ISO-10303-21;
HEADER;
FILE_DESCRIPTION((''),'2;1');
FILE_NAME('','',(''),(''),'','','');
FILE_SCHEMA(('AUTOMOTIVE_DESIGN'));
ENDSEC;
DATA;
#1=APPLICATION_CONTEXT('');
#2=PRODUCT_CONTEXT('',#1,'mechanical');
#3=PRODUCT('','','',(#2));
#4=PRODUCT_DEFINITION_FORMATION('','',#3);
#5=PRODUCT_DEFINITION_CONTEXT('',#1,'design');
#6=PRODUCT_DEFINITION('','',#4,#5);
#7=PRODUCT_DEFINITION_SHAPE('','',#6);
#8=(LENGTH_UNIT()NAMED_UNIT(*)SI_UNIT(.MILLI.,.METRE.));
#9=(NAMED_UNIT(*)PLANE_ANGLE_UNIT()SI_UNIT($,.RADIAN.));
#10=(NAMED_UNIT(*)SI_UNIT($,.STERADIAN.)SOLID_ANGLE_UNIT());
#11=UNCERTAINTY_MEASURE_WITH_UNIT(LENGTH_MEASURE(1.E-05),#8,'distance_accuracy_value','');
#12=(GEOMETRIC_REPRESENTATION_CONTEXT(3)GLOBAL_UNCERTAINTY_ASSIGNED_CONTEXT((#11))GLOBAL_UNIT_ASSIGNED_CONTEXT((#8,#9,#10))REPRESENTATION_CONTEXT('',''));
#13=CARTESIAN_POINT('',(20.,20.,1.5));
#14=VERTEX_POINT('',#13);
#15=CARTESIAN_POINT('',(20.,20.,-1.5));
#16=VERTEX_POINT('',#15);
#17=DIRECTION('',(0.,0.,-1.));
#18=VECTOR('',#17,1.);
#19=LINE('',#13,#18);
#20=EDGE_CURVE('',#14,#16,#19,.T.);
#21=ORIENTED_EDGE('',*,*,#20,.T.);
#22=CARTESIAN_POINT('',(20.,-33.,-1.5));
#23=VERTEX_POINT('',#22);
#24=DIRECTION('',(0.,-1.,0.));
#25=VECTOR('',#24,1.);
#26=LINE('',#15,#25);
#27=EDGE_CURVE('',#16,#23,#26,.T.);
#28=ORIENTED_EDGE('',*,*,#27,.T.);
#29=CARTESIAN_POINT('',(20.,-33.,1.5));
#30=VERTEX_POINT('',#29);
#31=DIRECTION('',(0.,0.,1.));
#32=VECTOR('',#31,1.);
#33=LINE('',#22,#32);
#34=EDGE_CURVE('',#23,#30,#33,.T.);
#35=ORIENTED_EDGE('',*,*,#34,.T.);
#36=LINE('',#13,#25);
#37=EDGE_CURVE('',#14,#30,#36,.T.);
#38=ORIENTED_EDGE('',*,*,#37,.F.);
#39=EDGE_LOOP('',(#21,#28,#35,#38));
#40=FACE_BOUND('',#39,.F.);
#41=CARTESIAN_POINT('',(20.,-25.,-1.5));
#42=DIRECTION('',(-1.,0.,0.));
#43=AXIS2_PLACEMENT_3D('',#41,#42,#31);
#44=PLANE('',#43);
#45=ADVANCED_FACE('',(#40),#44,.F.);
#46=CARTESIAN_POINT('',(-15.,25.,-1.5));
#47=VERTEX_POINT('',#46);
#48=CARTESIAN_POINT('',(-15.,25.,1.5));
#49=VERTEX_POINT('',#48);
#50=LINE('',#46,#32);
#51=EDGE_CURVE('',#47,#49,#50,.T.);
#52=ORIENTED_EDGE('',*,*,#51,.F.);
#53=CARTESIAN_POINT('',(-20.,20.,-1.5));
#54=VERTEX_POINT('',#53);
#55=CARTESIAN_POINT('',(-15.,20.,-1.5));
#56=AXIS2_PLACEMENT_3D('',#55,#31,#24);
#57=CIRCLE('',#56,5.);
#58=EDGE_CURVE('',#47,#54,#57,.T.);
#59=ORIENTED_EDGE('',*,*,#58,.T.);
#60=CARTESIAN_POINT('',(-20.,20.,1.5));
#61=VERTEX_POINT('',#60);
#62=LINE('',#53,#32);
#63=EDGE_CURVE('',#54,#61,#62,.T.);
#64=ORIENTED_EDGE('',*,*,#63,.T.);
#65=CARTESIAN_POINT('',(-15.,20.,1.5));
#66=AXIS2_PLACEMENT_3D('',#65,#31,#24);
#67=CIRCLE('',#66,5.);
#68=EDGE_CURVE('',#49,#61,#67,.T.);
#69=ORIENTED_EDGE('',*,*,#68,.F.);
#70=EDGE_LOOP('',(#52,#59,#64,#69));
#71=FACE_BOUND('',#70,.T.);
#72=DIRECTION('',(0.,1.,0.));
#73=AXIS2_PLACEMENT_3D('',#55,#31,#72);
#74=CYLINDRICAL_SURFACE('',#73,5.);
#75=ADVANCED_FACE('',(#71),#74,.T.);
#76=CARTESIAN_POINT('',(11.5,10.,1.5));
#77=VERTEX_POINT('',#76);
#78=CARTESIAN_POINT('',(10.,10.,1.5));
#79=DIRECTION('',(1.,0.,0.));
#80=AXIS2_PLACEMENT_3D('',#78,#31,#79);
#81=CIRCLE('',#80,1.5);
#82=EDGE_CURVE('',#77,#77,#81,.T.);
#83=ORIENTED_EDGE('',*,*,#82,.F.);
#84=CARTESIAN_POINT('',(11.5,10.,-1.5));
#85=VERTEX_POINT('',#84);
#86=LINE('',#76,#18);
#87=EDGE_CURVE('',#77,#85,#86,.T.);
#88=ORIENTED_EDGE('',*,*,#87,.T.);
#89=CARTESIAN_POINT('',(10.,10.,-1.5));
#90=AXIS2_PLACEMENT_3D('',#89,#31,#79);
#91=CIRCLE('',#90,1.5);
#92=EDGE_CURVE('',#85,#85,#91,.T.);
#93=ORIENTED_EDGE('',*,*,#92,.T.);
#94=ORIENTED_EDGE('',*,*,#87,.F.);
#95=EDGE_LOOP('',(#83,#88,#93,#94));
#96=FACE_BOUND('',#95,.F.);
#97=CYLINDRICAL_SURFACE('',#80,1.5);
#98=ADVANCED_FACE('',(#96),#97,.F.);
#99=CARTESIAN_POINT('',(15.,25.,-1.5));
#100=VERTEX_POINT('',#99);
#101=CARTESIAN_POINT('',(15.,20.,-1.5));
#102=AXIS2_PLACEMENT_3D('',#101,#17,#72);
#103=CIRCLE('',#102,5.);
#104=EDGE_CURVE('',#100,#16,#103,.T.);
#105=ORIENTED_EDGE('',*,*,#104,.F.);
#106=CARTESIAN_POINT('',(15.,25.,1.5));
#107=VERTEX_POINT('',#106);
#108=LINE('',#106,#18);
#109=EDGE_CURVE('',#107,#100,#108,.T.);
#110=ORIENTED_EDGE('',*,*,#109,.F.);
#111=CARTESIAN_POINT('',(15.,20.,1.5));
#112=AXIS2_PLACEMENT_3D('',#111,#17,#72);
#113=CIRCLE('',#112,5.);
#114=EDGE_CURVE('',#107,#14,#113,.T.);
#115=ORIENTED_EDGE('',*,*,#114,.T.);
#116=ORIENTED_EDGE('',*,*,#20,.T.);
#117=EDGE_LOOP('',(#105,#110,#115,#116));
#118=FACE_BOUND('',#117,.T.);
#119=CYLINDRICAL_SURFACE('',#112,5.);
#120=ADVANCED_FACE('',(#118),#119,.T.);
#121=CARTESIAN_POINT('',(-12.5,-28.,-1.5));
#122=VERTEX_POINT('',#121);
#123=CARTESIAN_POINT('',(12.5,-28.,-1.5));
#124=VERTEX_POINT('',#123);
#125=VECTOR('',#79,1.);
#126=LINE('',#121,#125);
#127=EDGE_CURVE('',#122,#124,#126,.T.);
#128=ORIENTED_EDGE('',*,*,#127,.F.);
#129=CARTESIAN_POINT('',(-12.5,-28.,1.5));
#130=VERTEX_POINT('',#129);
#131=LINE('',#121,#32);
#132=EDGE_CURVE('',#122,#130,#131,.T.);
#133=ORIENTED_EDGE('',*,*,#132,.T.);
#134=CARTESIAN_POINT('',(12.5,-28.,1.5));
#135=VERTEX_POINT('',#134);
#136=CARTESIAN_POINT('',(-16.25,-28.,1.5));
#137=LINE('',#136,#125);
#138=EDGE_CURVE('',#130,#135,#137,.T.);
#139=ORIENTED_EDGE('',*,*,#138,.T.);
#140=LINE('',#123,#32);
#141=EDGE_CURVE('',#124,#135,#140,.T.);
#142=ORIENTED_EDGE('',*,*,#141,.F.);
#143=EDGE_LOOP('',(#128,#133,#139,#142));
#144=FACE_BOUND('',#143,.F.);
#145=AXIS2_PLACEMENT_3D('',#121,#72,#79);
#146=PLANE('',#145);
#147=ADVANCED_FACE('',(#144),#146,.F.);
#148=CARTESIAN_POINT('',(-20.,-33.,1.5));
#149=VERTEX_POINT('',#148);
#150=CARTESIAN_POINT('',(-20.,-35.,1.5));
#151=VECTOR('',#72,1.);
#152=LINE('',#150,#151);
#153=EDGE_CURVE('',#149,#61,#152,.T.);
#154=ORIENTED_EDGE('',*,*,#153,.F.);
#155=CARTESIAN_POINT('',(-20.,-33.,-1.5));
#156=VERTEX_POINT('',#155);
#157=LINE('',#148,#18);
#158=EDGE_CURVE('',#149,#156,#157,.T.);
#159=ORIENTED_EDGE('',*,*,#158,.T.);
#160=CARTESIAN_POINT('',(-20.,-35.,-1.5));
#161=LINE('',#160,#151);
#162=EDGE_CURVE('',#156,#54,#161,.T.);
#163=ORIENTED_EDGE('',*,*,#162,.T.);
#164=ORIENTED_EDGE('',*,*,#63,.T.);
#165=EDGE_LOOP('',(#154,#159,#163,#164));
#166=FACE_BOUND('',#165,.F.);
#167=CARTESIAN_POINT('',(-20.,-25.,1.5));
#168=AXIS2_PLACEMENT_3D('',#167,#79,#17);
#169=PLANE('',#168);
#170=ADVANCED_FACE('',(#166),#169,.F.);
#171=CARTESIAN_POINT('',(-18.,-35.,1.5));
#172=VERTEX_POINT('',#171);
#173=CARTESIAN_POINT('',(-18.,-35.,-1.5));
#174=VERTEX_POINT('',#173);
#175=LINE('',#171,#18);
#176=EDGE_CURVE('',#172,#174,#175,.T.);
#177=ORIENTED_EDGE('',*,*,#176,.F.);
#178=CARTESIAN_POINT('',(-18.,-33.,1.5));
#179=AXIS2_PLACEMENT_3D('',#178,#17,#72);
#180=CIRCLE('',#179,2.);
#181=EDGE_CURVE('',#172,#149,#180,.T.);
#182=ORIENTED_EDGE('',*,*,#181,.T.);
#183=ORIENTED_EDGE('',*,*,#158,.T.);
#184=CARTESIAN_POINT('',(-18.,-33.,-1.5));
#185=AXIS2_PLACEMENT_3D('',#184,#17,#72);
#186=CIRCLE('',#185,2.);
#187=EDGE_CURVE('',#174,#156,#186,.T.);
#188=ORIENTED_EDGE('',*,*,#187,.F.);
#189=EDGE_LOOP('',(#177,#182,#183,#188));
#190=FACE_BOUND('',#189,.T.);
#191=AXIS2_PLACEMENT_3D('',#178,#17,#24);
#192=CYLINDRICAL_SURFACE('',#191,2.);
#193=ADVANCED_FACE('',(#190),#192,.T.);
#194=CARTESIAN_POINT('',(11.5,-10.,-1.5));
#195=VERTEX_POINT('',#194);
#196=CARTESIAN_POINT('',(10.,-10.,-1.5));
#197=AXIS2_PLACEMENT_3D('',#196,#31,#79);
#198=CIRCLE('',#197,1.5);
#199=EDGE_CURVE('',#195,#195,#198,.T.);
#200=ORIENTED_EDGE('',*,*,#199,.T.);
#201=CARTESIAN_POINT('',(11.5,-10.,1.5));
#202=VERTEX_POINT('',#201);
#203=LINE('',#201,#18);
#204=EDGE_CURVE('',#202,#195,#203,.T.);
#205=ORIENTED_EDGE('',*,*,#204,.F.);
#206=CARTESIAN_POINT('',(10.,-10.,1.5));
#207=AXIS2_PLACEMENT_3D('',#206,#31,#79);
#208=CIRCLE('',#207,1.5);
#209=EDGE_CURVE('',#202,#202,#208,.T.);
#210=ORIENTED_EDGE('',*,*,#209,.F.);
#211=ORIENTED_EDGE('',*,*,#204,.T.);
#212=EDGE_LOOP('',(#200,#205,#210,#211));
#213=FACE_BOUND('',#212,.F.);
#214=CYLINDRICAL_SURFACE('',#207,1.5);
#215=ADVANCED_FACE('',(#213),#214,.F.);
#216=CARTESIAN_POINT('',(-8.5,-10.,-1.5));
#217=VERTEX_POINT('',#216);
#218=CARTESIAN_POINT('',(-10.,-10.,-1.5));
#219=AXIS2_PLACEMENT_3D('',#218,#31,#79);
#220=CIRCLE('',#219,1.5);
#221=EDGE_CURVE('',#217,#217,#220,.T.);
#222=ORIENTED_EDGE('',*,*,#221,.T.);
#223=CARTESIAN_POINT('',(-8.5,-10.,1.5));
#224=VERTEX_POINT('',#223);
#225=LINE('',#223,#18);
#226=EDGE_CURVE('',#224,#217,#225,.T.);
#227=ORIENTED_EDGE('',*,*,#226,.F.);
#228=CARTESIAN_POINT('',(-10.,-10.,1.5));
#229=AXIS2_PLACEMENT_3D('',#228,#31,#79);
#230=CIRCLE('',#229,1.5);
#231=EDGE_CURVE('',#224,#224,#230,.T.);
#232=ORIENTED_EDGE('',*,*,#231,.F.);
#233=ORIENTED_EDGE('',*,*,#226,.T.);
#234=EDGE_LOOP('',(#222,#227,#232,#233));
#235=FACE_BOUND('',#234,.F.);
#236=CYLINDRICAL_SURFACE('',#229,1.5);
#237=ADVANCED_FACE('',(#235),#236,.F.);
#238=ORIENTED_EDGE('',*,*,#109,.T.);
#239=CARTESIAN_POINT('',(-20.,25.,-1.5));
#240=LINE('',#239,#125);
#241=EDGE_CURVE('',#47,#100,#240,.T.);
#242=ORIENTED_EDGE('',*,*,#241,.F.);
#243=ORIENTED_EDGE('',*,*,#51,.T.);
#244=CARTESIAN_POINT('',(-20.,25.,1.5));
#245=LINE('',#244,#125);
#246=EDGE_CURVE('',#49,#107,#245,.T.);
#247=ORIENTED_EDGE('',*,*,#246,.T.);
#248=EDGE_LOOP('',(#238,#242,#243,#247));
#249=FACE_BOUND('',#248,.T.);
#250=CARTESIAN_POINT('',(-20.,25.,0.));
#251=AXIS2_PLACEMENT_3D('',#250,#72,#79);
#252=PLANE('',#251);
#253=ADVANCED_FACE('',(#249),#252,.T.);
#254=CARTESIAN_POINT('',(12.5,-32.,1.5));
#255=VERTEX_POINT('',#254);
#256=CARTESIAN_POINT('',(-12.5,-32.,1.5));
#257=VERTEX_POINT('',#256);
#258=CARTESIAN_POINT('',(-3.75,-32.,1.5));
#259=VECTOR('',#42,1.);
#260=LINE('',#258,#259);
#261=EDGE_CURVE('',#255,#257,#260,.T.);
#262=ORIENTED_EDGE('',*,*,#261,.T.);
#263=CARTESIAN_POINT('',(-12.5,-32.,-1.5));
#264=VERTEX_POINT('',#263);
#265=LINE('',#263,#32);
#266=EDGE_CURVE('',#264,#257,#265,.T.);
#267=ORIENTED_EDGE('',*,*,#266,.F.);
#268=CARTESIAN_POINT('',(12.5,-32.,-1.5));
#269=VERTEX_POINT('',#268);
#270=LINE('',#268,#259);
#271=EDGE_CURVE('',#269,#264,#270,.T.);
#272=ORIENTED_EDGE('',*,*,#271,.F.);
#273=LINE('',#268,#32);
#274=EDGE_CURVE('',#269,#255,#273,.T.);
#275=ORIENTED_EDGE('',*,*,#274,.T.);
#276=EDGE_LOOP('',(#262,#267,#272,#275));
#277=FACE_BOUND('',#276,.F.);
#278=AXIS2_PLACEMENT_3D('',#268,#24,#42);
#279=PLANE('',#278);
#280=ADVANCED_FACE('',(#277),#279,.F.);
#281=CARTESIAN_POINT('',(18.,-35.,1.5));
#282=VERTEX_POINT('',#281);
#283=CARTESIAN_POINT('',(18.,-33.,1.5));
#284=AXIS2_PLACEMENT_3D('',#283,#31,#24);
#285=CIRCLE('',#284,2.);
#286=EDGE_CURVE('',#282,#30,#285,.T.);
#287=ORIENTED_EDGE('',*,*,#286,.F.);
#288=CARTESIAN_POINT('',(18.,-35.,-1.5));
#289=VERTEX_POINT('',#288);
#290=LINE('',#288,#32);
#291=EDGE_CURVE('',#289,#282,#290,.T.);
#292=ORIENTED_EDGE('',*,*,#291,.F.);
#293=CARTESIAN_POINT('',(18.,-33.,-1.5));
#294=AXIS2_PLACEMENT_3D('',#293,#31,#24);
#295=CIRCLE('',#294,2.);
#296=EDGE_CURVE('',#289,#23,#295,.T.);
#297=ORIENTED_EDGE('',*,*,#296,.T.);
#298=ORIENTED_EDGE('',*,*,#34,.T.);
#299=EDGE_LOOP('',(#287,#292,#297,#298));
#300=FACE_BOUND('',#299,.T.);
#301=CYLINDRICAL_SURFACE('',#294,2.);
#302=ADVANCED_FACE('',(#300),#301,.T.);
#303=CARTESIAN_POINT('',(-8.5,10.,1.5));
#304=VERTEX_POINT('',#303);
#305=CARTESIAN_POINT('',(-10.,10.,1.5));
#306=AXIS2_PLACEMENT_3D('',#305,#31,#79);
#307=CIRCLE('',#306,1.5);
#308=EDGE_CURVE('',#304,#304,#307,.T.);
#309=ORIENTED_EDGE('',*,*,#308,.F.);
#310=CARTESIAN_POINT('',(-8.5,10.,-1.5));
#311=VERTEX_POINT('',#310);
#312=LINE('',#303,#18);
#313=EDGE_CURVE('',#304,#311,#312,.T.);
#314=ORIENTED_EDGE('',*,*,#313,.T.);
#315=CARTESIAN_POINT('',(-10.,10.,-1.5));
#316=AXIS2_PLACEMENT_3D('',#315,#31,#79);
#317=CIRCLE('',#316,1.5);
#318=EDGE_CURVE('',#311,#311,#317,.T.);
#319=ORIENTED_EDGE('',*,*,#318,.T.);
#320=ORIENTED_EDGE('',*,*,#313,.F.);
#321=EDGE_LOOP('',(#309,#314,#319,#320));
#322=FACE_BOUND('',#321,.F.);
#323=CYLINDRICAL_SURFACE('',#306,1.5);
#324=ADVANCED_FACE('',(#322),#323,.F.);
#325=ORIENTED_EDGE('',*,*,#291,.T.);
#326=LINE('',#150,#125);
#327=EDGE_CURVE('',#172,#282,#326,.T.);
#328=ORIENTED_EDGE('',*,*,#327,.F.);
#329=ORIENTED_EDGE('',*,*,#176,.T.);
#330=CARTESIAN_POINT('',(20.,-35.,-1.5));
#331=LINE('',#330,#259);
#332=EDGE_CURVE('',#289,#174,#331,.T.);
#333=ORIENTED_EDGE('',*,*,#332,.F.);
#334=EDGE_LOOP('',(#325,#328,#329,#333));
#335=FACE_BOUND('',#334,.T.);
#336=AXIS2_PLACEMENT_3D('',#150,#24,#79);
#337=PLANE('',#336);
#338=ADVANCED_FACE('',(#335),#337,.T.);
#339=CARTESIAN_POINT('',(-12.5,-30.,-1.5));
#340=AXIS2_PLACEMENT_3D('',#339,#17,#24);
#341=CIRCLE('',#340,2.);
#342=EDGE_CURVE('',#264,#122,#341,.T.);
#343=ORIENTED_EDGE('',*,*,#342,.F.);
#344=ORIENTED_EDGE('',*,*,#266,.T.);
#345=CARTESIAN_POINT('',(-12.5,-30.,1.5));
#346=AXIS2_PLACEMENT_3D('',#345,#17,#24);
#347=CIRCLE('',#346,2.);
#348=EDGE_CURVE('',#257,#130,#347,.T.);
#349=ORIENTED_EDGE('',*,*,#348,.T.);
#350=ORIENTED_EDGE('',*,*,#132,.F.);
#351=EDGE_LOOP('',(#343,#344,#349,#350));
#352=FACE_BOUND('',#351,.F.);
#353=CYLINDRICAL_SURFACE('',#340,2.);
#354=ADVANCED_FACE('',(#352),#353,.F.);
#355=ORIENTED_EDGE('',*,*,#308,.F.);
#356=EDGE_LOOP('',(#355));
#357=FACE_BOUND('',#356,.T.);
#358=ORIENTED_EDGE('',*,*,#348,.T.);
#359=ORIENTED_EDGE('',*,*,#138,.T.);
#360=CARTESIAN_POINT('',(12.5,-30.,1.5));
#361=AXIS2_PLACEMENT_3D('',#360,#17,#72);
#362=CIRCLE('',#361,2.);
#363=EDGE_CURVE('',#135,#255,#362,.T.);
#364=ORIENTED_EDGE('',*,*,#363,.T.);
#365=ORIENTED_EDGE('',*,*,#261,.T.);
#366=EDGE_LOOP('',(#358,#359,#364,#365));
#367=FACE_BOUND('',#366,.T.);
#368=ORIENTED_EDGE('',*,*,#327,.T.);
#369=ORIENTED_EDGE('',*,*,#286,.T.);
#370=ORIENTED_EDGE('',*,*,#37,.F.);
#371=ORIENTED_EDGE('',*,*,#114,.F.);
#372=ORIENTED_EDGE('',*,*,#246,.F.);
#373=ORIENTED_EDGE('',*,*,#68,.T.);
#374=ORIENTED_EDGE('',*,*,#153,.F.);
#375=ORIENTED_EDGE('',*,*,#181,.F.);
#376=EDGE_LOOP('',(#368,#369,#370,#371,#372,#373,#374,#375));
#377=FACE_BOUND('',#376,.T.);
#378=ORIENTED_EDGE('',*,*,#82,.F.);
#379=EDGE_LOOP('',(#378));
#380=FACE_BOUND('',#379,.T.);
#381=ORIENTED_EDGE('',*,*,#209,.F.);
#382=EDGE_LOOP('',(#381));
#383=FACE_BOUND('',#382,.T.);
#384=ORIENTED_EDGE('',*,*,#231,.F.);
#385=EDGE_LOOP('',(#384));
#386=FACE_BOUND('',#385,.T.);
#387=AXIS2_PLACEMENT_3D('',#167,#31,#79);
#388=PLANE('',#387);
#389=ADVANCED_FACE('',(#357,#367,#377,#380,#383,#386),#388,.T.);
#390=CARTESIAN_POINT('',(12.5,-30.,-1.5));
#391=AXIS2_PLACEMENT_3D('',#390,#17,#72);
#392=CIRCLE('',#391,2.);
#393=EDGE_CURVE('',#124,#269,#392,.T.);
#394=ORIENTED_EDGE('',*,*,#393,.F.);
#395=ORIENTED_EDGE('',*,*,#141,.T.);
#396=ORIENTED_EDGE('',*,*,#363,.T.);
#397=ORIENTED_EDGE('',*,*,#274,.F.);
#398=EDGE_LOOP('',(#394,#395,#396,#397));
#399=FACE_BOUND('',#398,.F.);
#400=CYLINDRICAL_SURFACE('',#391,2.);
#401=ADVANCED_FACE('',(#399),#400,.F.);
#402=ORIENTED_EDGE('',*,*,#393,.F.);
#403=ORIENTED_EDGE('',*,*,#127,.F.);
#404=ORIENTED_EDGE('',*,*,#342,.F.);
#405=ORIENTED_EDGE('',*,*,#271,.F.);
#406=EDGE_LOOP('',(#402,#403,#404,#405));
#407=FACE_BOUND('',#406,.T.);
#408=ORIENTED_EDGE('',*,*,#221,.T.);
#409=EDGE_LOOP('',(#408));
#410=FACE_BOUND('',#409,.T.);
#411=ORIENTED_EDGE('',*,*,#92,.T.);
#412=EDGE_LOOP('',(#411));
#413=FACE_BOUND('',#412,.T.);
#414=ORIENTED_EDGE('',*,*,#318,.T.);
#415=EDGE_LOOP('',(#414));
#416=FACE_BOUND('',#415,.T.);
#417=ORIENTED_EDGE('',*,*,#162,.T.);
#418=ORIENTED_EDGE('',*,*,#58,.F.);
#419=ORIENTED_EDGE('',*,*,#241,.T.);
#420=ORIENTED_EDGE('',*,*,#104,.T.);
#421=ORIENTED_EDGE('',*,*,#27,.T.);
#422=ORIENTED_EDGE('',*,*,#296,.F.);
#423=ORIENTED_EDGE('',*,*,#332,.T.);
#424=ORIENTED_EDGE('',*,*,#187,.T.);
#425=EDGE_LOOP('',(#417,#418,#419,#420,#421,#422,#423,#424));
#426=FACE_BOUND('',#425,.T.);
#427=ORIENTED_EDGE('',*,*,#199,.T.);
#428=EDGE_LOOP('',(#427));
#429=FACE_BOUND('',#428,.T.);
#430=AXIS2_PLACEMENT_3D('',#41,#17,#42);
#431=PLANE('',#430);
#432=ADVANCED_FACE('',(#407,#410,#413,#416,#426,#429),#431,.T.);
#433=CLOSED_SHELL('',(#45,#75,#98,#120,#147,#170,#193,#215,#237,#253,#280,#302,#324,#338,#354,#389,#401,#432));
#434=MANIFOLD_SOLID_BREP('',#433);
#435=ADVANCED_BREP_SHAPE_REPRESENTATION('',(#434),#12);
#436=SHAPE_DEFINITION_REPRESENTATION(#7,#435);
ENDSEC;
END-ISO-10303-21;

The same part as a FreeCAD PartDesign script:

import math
import FreeCAD as App
import Part
import Sketcher
from FreeCAD import Vector


def edges_at(feature, points):
    """Names of the edges that pass closest to the given points."""
    edges = feature.Shape.Edges
    near = lambda p: min(range(len(edges)), key=lambda i: edges[i].distToShape(Part.Vertex(*p))[0])
    return sorted({f"Edge{near(p) + 1}" for p in points})

doc = App.newDocument("Part")
body = doc.addObject("PartDesign::Body", "Body")

sketch1 = body.newObject("Sketcher::SketchObject", "Sketch")
sketch1.AttachmentSupport = (doc.getObject("XY_Plane"), [""])
sketch1.MapMode = "FlatFace"
sketch1.addGeometry([
    Part.LineSegment(Vector(20, 25, 0), Vector(-20, 25, 0)),
    Part.LineSegment(Vector(-20, 25, 0), Vector(-20, -25, 0)),
    Part.LineSegment(Vector(-20, -25, 0), Vector(20, -25, 0)),
    Part.LineSegment(Vector(20, -25, 0), Vector(20, 25, 0)),
], False)
sketch1.addConstraint([
    Sketcher.Constraint("Coincident", 0, 2, 1, 1),
    Sketcher.Constraint("Coincident", 1, 2, 2, 1),
    Sketcher.Constraint("Coincident", 2, 2, 3, 1),
    Sketcher.Constraint("Coincident", 3, 2, 0, 1),
    Sketcher.Constraint("Horizontal", 0),
    Sketcher.Constraint("Vertical", 1),
    Sketcher.Constraint("Horizontal", 2),
    Sketcher.Constraint("Vertical", 3),
    Sketcher.Constraint("Symmetric", 0, 2, 2, 2, -1, 1),
    Sketcher.Constraint("DistanceX", 0, 2, 0, 1, 40.0),
    Sketcher.Constraint("DistanceY", 1, 2, 1, 1, 50.0),
])
pad1 = body.newObject("PartDesign::Pad", "Pad")
pad1.Profile = sketch1
pad1.Length = 3
pad1.Midplane = True
doc.recompute()

fillet = body.newObject("PartDesign::Fillet", "Fillet")
fillet.Base = (pad1, edges_at(pad1, [(20, 25, 0), (-20, 25, 0)]))
fillet.Radius = 5

sketch2 = body.newObject("Sketcher::SketchObject", "Sketch001")
sketch2.AttachmentSupport = (doc.getObject("XZ_Plane"), [""])
sketch2.MapMode = "FlatFace"
sketch2.AttachmentOffset = App.Placement(Vector(0, 0, 25), App.Rotation())
sketch2.addGeometry([
    Part.LineSegment(Vector(-20, -1.5, 0), Vector(20, -1.5, 0)),
    Part.LineSegment(Vector(20, -1.5, 0), Vector(20, 1.5, 0)),
    Part.LineSegment(Vector(20, 1.5, 0), Vector(-20, 1.5, 0)),
    Part.LineSegment(Vector(-20, 1.5, 0), Vector(-20, -1.5, 0)),
], False)
sketch2.addConstraint([
    Sketcher.Constraint("Coincident", 0, 2, 1, 1),
    Sketcher.Constraint("Coincident", 1, 2, 2, 1),
    Sketcher.Constraint("Coincident", 2, 2, 3, 1),
    Sketcher.Constraint("Coincident", 3, 2, 0, 1),
    Sketcher.Constraint("Horizontal", 0),
    Sketcher.Constraint("Vertical", 1),
    Sketcher.Constraint("Horizontal", 2),
    Sketcher.Constraint("Vertical", 3),
    Sketcher.Constraint("Symmetric", 0, 2, 2, 2, -1, 1),
    Sketcher.Constraint("DistanceX", 0, 1, 0, 2, 40.0),
    Sketcher.Constraint("DistanceY", 1, 1, 1, 2, 3.0),
])
pad2 = body.newObject("PartDesign::Pad", "Pad001")
pad2.Profile = sketch2
pad2.Length = 10

sketch3 = body.newObject("Sketcher::SketchObject", "Sketch002")
sketch3.AttachmentSupport = (doc.getObject("XY_Plane"), [""])
sketch3.MapMode = "FlatFace"
sketch3.AttachmentOffset = App.Placement(Vector(0, 0, -1.5), App.Rotation())
sketch3.addGeometry([
    Part.ArcOfCircle(Part.Circle(Vector(-12.5, -30, 0), Vector(0, 0, 1), 2), math.radians(90), math.radians(270)),
    Part.LineSegment(Vector(-12.5, -28, 0), Vector(12.5, -28, 0)),
    Part.ArcOfCircle(Part.Circle(Vector(12.5, -30, 0), Vector(0, 0, 1), 2), math.radians(-90), math.radians(90)),
    Part.LineSegment(Vector(12.5, -32, 0), Vector(-12.5, -32, 0)),
], False)
sketch3.addConstraint([
    Sketcher.Constraint("Tangent", 0, 1, 1, 1),
    Sketcher.Constraint("Tangent", 1, 2, 2, 2),
    Sketcher.Constraint("Tangent", 2, 1, 3, 1),
    Sketcher.Constraint("Tangent", 3, 2, 0, 2),
    Sketcher.Constraint("Horizontal", 1),
    Sketcher.Constraint("Horizontal", 3),
    Sketcher.Constraint("Radius", 0, 2.0),
    Sketcher.Constraint("DistanceX", 1, 1, 1, 2, 25.0),
    Sketcher.Constraint("DistanceY", 0, 3, -1, 1, 30.0),
    Sketcher.Constraint("DistanceX", 0, 3, -1, 1, 12.5),
])
pocket1 = body.newObject("PartDesign::Pocket", "Pocket")
pocket1.Profile = sketch3
pocket1.Type = "UpToFirst"
pocket1.Reversed = True
doc.recompute()

fillet2 = body.newObject("PartDesign::Fillet", "Fillet001")
fillet2.Base = (pocket1, edges_at(pocket1, [(-20, -35, 0), (20, -35, 0)]))
fillet2.Radius = 2

sketch4 = body.newObject("Sketcher::SketchObject", "Sketch003")
sketch4.AttachmentSupport = (doc.getObject("XY_Plane"), [""])
sketch4.MapMode = "FlatFace"
sketch4.AttachmentOffset = App.Placement(Vector(0, 0, 1.5), App.Rotation())
sketch4.addGeometry([
    Part.Circle(Vector(10, -10, 0), Vector(0, 0, 1), 1.5),
    Part.Circle(Vector(10, 10, 0), Vector(0, 0, 1), 1.5),
    Part.Circle(Vector(-10, 10, 0), Vector(0, 0, 1), 1.5),
    Part.Circle(Vector(-10, -10, 0), Vector(0, 0, 1), 1.5),
], False)
sketch4.addConstraint([
    Sketcher.Constraint("Equal", 0, 1),
    Sketcher.Constraint("Equal", 1, 2),
    Sketcher.Constraint("Equal", 2, 3),
    Sketcher.Constraint("Symmetric", 0, 3, 2, 3, -1, 1),
    Sketcher.Constraint("Symmetric", 1, 3, 3, 3, -1, 1),
    Sketcher.Constraint("Symmetric", 1, 3, 2, 3, -2),
    Sketcher.Constraint("Diameter", 0, 3.0),
    Sketcher.Constraint("DistanceX", -1, 1, 0, 3, 10.0),
    Sketcher.Constraint("DistanceY", 0, 3, -1, 1, 10.0),
])
pocket2 = body.newObject("PartDesign::Pocket", "Pocket001")
pocket2.Profile = sketch4
pocket2.Type = "UpToFirst"

doc.recompute()
